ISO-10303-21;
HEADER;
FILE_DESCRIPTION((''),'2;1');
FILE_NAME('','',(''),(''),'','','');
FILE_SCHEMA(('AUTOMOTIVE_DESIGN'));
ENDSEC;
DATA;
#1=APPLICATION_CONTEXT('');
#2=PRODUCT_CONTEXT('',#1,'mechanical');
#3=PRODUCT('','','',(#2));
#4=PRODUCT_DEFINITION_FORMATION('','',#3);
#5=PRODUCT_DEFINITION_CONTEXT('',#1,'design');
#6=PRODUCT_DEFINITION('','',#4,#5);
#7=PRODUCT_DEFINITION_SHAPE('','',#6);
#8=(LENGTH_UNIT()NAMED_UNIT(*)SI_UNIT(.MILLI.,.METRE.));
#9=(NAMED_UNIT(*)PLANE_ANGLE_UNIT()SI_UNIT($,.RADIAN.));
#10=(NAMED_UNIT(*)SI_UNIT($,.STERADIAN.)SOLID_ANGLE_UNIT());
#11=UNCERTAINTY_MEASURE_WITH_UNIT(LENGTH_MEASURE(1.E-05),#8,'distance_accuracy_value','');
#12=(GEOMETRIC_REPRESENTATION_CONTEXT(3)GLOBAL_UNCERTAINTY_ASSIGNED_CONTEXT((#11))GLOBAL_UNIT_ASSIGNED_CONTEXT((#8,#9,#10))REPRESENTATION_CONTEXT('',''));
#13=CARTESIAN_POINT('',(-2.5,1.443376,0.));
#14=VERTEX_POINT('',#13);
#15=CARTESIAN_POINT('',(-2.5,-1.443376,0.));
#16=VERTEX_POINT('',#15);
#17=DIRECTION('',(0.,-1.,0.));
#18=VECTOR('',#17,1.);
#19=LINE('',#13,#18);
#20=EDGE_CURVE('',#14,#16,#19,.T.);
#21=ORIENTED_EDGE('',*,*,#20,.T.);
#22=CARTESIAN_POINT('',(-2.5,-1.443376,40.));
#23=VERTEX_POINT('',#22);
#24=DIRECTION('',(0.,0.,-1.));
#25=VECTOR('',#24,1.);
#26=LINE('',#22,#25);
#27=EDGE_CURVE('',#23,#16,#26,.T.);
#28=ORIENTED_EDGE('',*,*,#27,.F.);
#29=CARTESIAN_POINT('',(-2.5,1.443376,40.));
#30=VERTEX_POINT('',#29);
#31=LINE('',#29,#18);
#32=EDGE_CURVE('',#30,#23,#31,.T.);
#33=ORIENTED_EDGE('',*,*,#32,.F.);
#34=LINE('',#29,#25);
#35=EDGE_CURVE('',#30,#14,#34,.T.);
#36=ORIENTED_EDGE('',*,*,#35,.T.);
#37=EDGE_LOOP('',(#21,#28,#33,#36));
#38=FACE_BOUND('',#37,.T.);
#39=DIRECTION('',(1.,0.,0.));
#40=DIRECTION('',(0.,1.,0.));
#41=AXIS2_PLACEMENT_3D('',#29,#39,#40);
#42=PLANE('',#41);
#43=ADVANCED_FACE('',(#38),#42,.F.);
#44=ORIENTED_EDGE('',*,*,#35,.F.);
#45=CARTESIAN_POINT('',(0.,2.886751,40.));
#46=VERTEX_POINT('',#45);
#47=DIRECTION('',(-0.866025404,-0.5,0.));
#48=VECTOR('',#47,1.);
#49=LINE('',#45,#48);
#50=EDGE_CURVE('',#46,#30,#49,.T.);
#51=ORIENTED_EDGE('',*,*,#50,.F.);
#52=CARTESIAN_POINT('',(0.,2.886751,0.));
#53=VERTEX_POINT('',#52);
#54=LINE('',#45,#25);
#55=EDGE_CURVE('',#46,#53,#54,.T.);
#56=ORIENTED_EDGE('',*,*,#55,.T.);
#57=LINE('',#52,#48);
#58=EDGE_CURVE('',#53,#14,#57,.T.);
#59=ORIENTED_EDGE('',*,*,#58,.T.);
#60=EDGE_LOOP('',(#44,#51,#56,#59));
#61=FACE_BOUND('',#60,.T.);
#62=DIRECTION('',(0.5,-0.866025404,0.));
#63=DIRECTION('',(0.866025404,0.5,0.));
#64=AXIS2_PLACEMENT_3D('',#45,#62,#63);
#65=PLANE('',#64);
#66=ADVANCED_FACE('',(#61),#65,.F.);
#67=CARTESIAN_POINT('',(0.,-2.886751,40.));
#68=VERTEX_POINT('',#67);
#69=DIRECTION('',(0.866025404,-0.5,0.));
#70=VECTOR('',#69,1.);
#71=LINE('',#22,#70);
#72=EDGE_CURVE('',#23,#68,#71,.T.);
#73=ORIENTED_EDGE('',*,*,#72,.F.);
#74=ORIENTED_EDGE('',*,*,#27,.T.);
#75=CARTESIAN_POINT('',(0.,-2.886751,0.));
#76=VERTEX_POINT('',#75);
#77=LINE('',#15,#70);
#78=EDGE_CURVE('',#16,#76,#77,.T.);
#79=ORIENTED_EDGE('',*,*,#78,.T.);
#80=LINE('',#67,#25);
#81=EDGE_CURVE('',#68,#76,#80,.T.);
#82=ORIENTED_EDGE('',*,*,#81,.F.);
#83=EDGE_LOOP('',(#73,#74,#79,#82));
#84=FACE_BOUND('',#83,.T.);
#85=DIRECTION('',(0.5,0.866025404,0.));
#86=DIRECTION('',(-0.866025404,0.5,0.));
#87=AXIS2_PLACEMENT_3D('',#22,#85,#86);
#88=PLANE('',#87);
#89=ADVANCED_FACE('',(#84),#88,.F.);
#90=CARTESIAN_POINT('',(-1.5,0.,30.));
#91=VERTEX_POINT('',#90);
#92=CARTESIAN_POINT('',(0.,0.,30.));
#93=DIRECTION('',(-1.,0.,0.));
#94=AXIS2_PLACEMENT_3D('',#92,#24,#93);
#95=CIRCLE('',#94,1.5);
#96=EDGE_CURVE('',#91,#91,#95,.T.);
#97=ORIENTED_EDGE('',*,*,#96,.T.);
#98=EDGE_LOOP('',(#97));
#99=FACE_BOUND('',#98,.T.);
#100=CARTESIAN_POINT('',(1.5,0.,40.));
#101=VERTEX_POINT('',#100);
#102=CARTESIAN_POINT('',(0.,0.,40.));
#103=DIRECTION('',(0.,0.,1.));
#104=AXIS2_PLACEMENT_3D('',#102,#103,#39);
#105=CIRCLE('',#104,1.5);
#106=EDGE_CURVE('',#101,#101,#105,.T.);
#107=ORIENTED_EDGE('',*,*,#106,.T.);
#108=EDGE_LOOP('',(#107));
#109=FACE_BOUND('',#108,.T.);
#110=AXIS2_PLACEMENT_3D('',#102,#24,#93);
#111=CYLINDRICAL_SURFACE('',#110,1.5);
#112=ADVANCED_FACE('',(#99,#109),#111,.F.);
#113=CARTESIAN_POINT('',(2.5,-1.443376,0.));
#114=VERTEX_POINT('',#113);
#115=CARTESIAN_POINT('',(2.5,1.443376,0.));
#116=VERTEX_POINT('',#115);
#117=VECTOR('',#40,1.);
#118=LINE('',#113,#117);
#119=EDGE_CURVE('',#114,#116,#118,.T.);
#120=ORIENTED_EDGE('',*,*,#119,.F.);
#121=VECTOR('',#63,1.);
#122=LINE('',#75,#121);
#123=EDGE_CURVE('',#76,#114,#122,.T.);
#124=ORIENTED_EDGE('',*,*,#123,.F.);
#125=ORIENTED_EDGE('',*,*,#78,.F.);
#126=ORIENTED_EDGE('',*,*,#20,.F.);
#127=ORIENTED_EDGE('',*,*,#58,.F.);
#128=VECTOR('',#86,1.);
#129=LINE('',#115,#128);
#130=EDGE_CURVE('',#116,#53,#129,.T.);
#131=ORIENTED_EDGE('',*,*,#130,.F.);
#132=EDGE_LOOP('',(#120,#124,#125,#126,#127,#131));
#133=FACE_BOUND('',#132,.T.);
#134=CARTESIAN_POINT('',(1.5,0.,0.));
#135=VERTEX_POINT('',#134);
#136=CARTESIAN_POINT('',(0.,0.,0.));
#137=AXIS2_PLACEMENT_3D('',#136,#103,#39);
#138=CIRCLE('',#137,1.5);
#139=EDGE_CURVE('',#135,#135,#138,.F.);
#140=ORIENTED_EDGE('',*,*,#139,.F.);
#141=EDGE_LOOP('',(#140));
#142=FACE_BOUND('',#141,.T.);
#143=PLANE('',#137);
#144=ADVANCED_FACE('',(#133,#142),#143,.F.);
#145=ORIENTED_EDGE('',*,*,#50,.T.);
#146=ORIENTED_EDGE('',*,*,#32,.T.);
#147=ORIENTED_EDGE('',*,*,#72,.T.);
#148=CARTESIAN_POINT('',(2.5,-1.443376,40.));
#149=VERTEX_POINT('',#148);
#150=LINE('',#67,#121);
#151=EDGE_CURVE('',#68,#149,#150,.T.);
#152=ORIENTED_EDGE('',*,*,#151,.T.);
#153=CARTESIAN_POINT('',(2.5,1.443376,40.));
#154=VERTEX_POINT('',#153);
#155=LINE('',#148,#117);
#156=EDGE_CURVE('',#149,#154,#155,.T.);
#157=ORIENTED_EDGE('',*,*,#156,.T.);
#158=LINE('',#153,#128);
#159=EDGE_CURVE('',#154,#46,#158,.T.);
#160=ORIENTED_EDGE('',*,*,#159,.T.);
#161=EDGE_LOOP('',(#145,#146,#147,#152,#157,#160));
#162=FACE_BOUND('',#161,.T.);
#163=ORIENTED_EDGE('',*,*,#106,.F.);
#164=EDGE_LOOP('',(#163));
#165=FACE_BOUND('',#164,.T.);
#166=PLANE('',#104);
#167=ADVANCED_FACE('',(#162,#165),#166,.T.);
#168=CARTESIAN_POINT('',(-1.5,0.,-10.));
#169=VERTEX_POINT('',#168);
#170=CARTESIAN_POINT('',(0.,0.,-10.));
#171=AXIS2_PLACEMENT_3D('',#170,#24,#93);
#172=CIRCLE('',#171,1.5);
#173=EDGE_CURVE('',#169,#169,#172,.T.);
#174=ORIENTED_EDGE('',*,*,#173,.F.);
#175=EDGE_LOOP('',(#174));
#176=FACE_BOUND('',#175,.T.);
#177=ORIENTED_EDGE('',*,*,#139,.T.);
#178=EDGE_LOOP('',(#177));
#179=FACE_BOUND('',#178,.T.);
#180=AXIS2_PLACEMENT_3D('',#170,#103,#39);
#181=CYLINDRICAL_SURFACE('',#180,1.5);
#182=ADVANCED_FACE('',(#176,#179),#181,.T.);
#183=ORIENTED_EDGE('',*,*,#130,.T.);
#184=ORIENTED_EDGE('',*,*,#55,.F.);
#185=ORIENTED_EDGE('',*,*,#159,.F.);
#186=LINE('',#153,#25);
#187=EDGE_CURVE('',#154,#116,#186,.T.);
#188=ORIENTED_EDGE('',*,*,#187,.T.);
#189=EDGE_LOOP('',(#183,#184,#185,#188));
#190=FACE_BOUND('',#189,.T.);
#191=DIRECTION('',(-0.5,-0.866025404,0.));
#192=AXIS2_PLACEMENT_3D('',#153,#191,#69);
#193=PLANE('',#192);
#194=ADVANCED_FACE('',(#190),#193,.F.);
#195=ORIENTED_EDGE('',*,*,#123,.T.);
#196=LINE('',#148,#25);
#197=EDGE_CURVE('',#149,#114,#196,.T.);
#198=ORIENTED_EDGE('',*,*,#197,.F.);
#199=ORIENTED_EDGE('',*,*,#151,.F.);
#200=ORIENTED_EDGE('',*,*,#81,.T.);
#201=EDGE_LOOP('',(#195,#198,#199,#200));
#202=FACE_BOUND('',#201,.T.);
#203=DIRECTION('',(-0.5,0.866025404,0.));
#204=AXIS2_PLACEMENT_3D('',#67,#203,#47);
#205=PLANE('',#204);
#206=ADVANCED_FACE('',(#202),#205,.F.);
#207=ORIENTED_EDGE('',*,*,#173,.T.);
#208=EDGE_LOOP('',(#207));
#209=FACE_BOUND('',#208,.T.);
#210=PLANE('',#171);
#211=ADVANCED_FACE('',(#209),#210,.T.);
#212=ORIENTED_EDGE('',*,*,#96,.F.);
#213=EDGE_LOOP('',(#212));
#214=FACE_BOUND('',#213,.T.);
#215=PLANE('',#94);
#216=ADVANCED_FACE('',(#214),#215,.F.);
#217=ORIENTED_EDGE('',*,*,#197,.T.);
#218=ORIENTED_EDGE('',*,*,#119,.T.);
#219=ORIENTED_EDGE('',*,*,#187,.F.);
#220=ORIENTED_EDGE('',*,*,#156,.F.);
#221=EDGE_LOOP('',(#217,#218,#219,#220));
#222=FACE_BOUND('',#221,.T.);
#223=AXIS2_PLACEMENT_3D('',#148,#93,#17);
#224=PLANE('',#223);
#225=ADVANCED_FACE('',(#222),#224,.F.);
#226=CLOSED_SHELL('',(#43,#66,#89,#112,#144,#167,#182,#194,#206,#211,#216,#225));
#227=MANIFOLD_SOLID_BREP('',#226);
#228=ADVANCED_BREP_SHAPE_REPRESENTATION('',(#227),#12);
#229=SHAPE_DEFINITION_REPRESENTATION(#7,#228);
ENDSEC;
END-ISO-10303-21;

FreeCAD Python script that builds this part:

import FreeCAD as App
import Part
import Sketcher
from FreeCAD import Vector
Q = App.Units.Quantity

doc = App.newDocument("Part")
body = doc.addObject("PartDesign::Body", "Body")

# Sketch on XY plane
sketch1 = body.newObject("Sketcher::SketchObject", "Sketch")
sketch1.AttachmentSupport = (doc.getObject("XY_Plane"), [""])
sketch1.MapMode = "FlatFace"
sketch1.addGeometry([
    Part.LineSegment(Vector(0, -2.9, 0), Vector(2.5, -1.4, 0)),  # 0
    Part.LineSegment(Vector(2.5, -1.4, 0), Vector(2.5, 1.4, 0)),  # 1
    Part.LineSegment(Vector(2.5, 1.4, 0), Vector(0, 2.9, 0)),  # 2
    Part.LineSegment(Vector(0, 2.9, 0), Vector(-2.5, 1.4, 0)),  # 3
    Part.LineSegment(Vector(-2.5, 1.4, 0), Vector(-2.5, -1.4, 0)),  # 4
    Part.LineSegment(Vector(-2.5, -1.4, 0), Vector(0, -2.9, 0)),  # 5
    Part.Circle(Vector(0, 0, 0), Vector(0, 0, 1), 1.5),  # 6
], False)
sketch1.addConstraint([
    Sketcher.Constraint("Coincident", 0, 2, 1, 1),
    Sketcher.Constraint("Coincident", 1, 2, 2, 1),
    Sketcher.Constraint("Coincident", 2, 2, 3, 1),
    Sketcher.Constraint("Coincident", 3, 2, 4, 1),
    Sketcher.Constraint("Coincident", 4, 2, 5, 1),
    Sketcher.Constraint("Coincident", 5, 2, 0, 1),
    Sketcher.Constraint("Vertical", 1),
    Sketcher.Constraint("Vertical", 4),
    Sketcher.Constraint("Coincident", 6, 3, -1, 1),
    Sketcher.Constraint("Symmetric", 0, 2, 3, 2, -1, 1),
    Sketcher.Constraint("Symmetric", 2, 2, 5, 2, -1, 1),
    Sketcher.Constraint("PointOnObject", 2, 2, -2),
    Sketcher.Constraint("Parallel", 2, 5),
    Sketcher.Constraint("Horizontal", 1, 2, 3, 2),
    Sketcher.Constraint("Diameter", 6, Q("3 mm")),
    Sketcher.Constraint("Angle", 0, Q("30 deg")),
    Sketcher.Constraint("DistanceX", 3, 2, 1, 2, Q("5 mm")),
    Sketcher.Constraint("DistanceY", 1, 1, 1, 2, Q("2.886751 mm")),
])
pad1 = body.newObject("PartDesign::Pad", "Pad")
pad1.Profile = sketch1
pad1.Length = 40

# Sketch on XY plane
sketch2 = body.newObject("Sketcher::SketchObject", "Sketch001")
sketch2.AttachmentSupport = (doc.getObject("XY_Plane"), [""])
sketch2.MapMode = "FlatFace"
sketch2.addGeometry(Part.Circle(Vector(0, 0, 0), Vector(0, 0, 1), 1.5), False)
sketch2.addConstraint([
    Sketcher.Constraint("Coincident", 0, 3, -1, 1),
    Sketcher.Constraint("Diameter", 0, Q("3 mm")),
])
pad2 = body.newObject("PartDesign::Pad", "Pad001")
pad2.Profile = sketch2
pad2.Type = "TwoLengths"
pad2.Length = 10
pad2.Length2 = 30
pad2.Reversed = True

doc.recompute()
